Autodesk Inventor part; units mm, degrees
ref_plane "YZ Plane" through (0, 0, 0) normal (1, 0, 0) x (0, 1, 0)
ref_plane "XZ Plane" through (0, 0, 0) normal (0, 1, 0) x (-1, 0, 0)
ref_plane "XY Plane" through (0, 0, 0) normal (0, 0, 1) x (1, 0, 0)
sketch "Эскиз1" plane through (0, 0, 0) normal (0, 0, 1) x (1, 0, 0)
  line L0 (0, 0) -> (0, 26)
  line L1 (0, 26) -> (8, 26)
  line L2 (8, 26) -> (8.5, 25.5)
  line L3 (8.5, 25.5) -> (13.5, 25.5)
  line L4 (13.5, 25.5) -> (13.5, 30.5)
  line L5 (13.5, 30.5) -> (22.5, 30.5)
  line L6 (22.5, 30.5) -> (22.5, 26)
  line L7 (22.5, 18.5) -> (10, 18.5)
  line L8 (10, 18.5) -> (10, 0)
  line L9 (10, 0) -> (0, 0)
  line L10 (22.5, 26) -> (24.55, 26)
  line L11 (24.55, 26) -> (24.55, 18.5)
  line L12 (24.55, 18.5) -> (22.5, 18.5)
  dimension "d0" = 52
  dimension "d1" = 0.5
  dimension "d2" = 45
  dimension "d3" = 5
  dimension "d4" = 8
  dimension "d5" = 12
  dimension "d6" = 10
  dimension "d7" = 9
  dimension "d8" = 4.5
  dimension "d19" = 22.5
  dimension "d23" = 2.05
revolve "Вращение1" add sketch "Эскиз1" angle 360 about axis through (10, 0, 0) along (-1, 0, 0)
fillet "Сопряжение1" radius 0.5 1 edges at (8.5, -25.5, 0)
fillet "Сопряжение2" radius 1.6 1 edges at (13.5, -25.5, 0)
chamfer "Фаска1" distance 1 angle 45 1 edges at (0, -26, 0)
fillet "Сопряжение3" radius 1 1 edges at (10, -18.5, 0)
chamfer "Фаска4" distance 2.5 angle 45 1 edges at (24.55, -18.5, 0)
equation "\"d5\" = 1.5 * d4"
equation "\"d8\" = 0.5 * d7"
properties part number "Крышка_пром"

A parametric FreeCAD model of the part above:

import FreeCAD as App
import Part
import Sketcher
from FreeCAD import Vector
Q = App.Units.Quantity


def edges_at(feature, points):
    """Names of the edges that pass closest to the given points."""
    edges = feature.Shape.Edges
    near = lambda p: min(range(len(edges)), key=lambda i: edges[i].distToShape(Part.Vertex(*p))[0])
    return sorted({f"Edge{near(p) + 1}" for p in points})

doc = App.newDocument("Part")
body = doc.addObject("PartDesign::Body", "Body")

# Sketch on XY plane
sketch1 = doc.addObject("Sketcher::SketchObject", "Sketch")
body.addObject(sketch1)
sketch1.AttachmentSupport = (doc.XY_Plane, [""])
sketch1.MapMode = "FlatFace"
sketch1.addGeometry([
    Part.LineSegment(Vector(0, 26, 0), Vector(0, 0, 0)),  # 0
    Part.LineSegment(Vector(0, 0, 0), Vector(10, 0, 0)),  # 1
    Part.LineSegment(Vector(10, 0, 0), Vector(10, 18.5, 0)),  # 2
    Part.LineSegment(Vector(10, 18.5, 0), Vector(24.6, 18.5, 0)),  # 3
    Part.LineSegment(Vector(24.6, 18.5, 0), Vector(24.6, 26, 0)),  # 4
    Part.LineSegment(Vector(24.6, 26, 0), Vector(22.5, 26, 0)),  # 5
    Part.LineSegment(Vector(22.5, 26, 0), Vector(22.5, 30.5, 0)),  # 6
    Part.LineSegment(Vector(22.5, 30.5, 0), Vector(13.5, 30.5, 0)),  # 7
    Part.LineSegment(Vector(13.5, 30.5, 0), Vector(13.5, 25.5, 0)),  # 8
    Part.LineSegment(Vector(13.5, 25.5, 0), Vector(8.5, 25.5, 0)),  # 9
    Part.LineSegment(Vector(8.5, 25.5, 0), Vector(8, 26, 0)),  # 10
    Part.LineSegment(Vector(8, 26, 0), Vector(0, 26, 0)),  # 11
], False)
sketch1.addConstraint([
    Sketcher.Constraint("Coincident", 0, 2, 1, 1),
    Sketcher.Constraint("Coincident", 1, 2, 2, 1),
    Sketcher.Constraint("Coincident", 2, 2, 3, 1),
    Sketcher.Constraint("Coincident", 3, 2, 4, 1),
    Sketcher.Constraint("Coincident", 4, 2, 5, 1),
    Sketcher.Constraint("Coincident", 5, 2, 6, 1),
    Sketcher.Constraint("Coincident", 6, 2, 7, 1),
    Sketcher.Constraint("Coincident", 7, 2, 8, 1),
    Sketcher.Constraint("Coincident", 8, 2, 9, 1),
    Sketcher.Constraint("Coincident", 9, 2, 10, 1),
    Sketcher.Constraint("Coincident", 10, 2, 11, 1),
    Sketcher.Constraint("Coincident", 11, 2, 0, 1),
    Sketcher.Constraint("Vertical", 0),
    Sketcher.Constraint("Horizontal", 1),
    Sketcher.Constraint("Vertical", 2),
    Sketcher.Constraint("Horizontal", 3),
    Sketcher.Constraint("Vertical", 4),
    Sketcher.Constraint("Horizontal", 5),
    Sketcher.Constraint("Vertical", 6),
    Sketcher.Constraint("Horizontal", 7),
    Sketcher.Constraint("Vertical", 8),
    Sketcher.Constraint("Horizontal", 9),
    Sketcher.Constraint("Horizontal", 11),
    Sketcher.Constraint("Coincident", 0, 2, -1, 1),
    Sketcher.Constraint("Horizontal", 5, 2, 10, 2),
    Sketcher.Constraint("Equal", 9, 8),
    Sketcher.Constraint("DistanceX", 1, 1, 1, 2, Q("10 mm")),
    Sketcher.Constraint("DistanceX", 7, 2, 7, 1, Q("9 mm")),
    Sketcher.Constraint("DistanceX", 9, 2, 9, 1, Q("5 mm")),
    Sketcher.Constraint("DistanceX", 11, 2, 11, 1, Q("8 mm")),
    Sketcher.Constraint("DistanceY", 6, 1, 6, 2, Q("4.5 mm")),
    Sketcher.Constraint("DistanceY", 3, 2, 6, 2, Q("12 mm")),
    Sketcher.Constraint("DistanceX", 5, 2, 5, 1, Q("2.05 mm")),
    Sketcher.Constraint("DistanceX", -1, 1, 5, 2, Q("22.5 mm")),
    Sketcher.Constraint("DistanceY", 0, 2, 0, 1, Q("26 mm")),
])
revolution = doc.addObject("PartDesign::Revolution", "Revolution")
body.addObject(revolution)
revolution.Profile = sketch1
revolution.ReferenceAxis = (sketch1, ["H_Axis"])
revolution.Angle = 360
doc.recompute()

fillet = doc.addObject("PartDesign::Fillet", "Fillet")
body.addObject(fillet)
fillet.Base = (revolution, edges_at(revolution, [(8.5, -25.5, 0)]))
fillet.Radius = 0.5
doc.recompute()

fillet2 = doc.addObject("PartDesign::Fillet", "Fillet001")
body.addObject(fillet2)
fillet2.Base = (fillet, edges_at(fillet, [(13.5, -25.5, 0)]))
fillet2.Radius = 1.6
doc.recompute()

chamfer = doc.addObject("PartDesign::Chamfer", "Chamfer")
body.addObject(chamfer)
chamfer.Base = (fillet2, edges_at(fillet2, [(0, -26, 0)]))
chamfer.Size = 1
doc.recompute()

fillet3 = doc.addObject("PartDesign::Fillet", "Fillet002")
body.addObject(fillet3)
fillet3.Base = (chamfer, edges_at(chamfer, [(10, -18.5, 0)]))
fillet3.Radius = 1
doc.recompute()

chamfer2 = doc.addObject("PartDesign::Chamfer", "Chamfer001")
body.addObject(chamfer2)
chamfer2.Base = (fillet3, edges_at(fillet3, [(24.55, -18.5, 0)]))
chamfer2.Size = 2.5

doc.recompute()
